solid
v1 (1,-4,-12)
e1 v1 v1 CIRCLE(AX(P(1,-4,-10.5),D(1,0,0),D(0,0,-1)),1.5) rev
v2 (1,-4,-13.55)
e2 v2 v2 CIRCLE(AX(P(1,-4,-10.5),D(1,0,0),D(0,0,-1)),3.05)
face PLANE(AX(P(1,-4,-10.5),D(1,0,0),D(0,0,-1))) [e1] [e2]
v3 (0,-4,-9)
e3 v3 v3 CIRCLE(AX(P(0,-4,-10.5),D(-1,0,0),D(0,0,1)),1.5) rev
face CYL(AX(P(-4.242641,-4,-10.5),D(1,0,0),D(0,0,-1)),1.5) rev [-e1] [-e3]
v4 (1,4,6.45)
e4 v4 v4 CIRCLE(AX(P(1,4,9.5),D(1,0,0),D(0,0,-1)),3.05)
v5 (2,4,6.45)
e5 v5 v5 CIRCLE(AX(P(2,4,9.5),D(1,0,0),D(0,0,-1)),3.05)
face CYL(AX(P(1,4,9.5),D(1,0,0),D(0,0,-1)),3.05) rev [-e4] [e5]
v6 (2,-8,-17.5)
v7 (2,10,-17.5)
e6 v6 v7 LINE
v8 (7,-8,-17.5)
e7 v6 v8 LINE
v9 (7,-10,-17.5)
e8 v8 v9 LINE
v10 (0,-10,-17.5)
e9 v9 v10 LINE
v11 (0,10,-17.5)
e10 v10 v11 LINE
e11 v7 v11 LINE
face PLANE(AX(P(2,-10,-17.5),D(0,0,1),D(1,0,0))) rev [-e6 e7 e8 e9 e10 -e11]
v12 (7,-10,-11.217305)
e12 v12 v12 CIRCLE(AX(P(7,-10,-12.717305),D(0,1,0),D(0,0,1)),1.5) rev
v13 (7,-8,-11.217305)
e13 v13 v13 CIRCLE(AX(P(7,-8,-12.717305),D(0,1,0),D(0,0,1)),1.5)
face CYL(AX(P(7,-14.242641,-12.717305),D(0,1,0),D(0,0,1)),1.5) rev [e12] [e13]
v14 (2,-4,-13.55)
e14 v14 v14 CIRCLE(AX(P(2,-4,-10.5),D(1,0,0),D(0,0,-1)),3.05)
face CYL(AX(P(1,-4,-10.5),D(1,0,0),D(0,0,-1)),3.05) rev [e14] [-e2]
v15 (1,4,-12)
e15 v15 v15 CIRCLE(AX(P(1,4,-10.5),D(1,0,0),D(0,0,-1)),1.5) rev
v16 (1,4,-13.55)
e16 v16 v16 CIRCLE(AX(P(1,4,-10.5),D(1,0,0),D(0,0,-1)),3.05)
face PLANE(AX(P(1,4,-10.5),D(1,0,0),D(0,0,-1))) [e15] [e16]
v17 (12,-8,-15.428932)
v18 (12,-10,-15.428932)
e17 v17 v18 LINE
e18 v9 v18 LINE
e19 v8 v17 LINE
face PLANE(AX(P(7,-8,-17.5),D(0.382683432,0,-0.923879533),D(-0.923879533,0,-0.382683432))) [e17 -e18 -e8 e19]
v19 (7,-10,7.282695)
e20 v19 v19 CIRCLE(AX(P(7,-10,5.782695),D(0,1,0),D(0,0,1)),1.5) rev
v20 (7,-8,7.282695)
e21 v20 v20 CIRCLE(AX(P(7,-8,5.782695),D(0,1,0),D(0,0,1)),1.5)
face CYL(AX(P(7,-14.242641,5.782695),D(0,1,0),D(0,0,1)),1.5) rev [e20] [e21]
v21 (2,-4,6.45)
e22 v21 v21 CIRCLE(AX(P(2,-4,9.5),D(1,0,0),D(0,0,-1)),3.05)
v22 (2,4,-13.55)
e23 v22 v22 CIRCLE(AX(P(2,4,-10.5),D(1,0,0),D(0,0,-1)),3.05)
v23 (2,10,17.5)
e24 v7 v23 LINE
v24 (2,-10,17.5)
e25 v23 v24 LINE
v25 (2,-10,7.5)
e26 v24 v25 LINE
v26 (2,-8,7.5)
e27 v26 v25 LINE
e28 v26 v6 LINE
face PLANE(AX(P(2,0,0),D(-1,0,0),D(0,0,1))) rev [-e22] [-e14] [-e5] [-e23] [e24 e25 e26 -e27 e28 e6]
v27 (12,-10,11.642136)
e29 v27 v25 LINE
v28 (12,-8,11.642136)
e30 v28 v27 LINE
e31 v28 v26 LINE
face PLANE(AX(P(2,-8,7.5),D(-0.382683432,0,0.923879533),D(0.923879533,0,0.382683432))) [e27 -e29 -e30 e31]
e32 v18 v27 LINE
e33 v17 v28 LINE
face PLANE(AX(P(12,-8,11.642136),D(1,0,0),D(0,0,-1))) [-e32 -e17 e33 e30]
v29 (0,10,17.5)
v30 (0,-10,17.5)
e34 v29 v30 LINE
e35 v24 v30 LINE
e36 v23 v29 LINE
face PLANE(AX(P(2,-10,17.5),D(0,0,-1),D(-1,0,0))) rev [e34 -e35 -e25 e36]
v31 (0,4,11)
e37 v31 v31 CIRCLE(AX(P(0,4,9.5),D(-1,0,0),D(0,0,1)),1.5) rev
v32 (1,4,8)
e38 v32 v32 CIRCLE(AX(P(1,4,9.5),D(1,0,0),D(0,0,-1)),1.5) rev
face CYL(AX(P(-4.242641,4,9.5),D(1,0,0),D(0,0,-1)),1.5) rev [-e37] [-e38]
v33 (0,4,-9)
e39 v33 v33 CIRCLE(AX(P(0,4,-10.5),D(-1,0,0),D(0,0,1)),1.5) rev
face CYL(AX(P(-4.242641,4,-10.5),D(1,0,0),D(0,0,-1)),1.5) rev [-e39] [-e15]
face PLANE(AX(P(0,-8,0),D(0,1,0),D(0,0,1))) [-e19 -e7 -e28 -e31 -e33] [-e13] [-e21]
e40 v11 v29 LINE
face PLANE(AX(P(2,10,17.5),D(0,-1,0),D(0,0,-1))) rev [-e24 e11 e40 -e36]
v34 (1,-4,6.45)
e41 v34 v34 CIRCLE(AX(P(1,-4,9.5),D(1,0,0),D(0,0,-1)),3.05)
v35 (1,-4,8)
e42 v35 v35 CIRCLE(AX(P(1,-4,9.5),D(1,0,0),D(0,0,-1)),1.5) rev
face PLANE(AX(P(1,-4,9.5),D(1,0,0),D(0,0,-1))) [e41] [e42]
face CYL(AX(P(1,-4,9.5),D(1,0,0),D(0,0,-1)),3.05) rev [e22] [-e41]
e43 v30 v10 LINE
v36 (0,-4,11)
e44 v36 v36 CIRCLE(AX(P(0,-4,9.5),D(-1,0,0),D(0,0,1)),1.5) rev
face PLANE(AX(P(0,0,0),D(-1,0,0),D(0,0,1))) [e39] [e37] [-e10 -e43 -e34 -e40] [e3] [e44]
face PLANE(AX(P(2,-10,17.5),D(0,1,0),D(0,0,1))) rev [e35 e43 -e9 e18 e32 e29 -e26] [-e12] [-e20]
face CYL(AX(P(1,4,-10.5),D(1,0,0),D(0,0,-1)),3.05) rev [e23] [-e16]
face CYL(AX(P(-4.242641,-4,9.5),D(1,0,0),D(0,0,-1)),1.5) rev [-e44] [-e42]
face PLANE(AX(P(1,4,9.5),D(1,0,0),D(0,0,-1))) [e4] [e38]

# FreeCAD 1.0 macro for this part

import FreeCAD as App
import Part
import Sketcher
Q = App.Units.Quantity


def add_polygon(sketch, points):
    """Adds a closed chain of lines whose ends are joined by coincident constraints."""
    first, n = sketch.GeometryCount, len(points)
    for a, b in zip(points, points[1:] + points[:1]):
        sketch.addGeometry(Part.LineSegment(App.Vector(*a, 0), App.Vector(*b, 0)), False)
    for i in range(n):
        sketch.addConstraint(Sketcher.Constraint("Coincident", first + i, 2, first + (i + 1) % n, 1))

doc = App.newDocument("Part")
body = doc.addObject("PartDesign::Body", "Body")

sketch1 = body.newObject("Sketcher::SketchObject", "Sketch")
sketch1.AttachmentSupport = (doc.getObject("YZ_Plane"), [""])
sketch1.MapMode = "FlatFace"
add_polygon(sketch1, [(10, 18), (-10, 18), (-10, -18), (10, -18)])
sketch1.addConstraint(Sketcher.Constraint("Horizontal", 0))
sketch1.addConstraint(Sketcher.Constraint("Vertical", 1))
sketch1.addConstraint(Sketcher.Constraint("Horizontal", 2))
sketch1.addConstraint(Sketcher.Constraint("Vertical", 3))
sketch1.addConstraint(Sketcher.Constraint("Symmetric", 0, 2, 2, 2, -1, 1))
sketch1.addConstraint(Sketcher.Constraint("DistanceX", 0, 2, 0, 1, Q("20 mm")))
sketch1.addConstraint(Sketcher.Constraint("DistanceY", 1, 2, 1, 1, Q("35 mm")))
pad1 = body.newObject("PartDesign::Pad", "Pad")
pad1.Profile = sketch1
pad1.Length = 2

sketch2 = body.newObject("Sketcher::SketchObject", "Sketch001")
sketch2.AttachmentSupport = (doc.getObject("YZ_Plane"), [""])
sketch2.MapMode = "FlatFace"
sketch2.AttachmentOffset = App.Placement(App.Vector(0, 0, 2), App.Rotation())
sketch2.addGeometry(Part.Circle(App.Vector(4, -10.5, 0), App.Vector(0, 0, 1), 1.5), False)
sketch2.addGeometry(Part.Circle(App.Vector(-4, -10.5, 0), App.Vector(0, 0, 1), 1.5), False)
sketch2.addGeometry(Part.Circle(App.Vector(4, 9.5, 0), App.Vector(0, 0, 1), 1.5), False)
sketch2.addGeometry(Part.Circle(App.Vector(-4, 9.5, 0), App.Vector(0, 0, 1), 1.5), False)
sketch2.addConstraint(Sketcher.Constraint("Equal", 0, 1))
sketch2.addConstraint(Sketcher.Constraint("Equal", 1, 2))
sketch2.addConstraint(Sketcher.Constraint("Equal", 2, 3))
sketch2.addConstraint(Sketcher.Constraint("Symmetric", 0, 3, 1, 3, -2))
sketch2.addConstraint(Sketcher.Constraint("Symmetric", 2, 3, 3, 3, -2))
sketch2.addConstraint(Sketcher.Constraint("Vertical", 0, 3, 2, 3))
sketch2.addConstraint(Sketcher.Constraint("Diameter", 0, Q("3 mm")))
sketch2.addConstraint(Sketcher.Constraint("DistanceX", -1, 1, 0, 3, Q("4 mm")))
sketch2.addConstraint(Sketcher.Constraint("DistanceY", 0, 3, 2, 3, Q("20 mm")))
sketch2.addConstraint(Sketcher.Constraint("DistanceY", 0, 3, -1, 1, Q("10.5 mm")))
pocket1 = body.newObject("PartDesign::Pocket", "Pocket")
pocket1.Profile = sketch2
pocket1.Length = 2

sketch3 = body.newObject("Sketcher::SketchObject", "Sketch002")
sketch3.AttachmentSupport = (doc.getObject("XZ_Plane"), [""])
sketch3.MapMode = "FlatFace"
sketch3.AttachmentOffset = App.Placement(App.Vector(0, 0, 10), App.Rotation())
add_polygon(sketch3, [(12, 12), (2, 8), (2, -18), (7, -18), (12, -15)])
sketch3.addConstraint(Sketcher.Constraint("Vertical", 1))
sketch3.addConstraint(Sketcher.Constraint("Horizontal", 2))
sketch3.addConstraint(Sketcher.Constraint("Vertical", 4))
sketch3.addConstraint(Sketcher.Constraint("Parallel", 0, 3))
sketch3.addConstraint(Sketcher.Constraint("DistanceX", 2, 1, 2, 2, Q("5 mm")))
sketch3.addConstraint(Sketcher.Constraint("DistanceY", 1, 2, 1, 1, Q("25 mm")))
sketch3.addConstraint(Sketcher.Constraint("DistanceX", -1, 1, 0, 2, Q("2 mm")))
sketch3.addConstraint(Sketcher.Constraint("DistanceX", -1, 1, 3, 2, Q("12 mm")))
sketch3.addConstraint(Sketcher.Constraint("Angle", 0, Q("-157.5 deg")))
sketch3.addConstraint(Sketcher.Constraint("DistanceY", -1, 1, 0, 2, Q("7.5 mm")))
pad2 = body.newObject("PartDesign::Pad", "Pad001")
pad2.Profile = sketch3
pad2.Length = 2
pad2.Reversed = True

sketch4 = body.newObject("Sketcher::SketchObject", "Sketch003")
sketch4.AttachmentSupport = (doc.getObject("XZ_Plane"), [""])
sketch4.MapMode = "FlatFace"
sketch4.AttachmentOffset = App.Placement(App.Vector(0, 0, 8), App.Rotation())
sketch4.addGeometry(Part.Circle(App.Vector(7, -12.7, 0), App.Vector(0, 0, 1), 1.5), False)
sketch4.addGeometry(Part.Circle(App.Vector(7, 5.8, 0), App.Vector(0, 0, 1), 1.5), False)
sketch4.addConstraint(Sketcher.Constraint("Equal", 0, 1))
sketch4.addConstraint(Sketcher.Constraint("Vertical", 0, 3, 1, 3))
sketch4.addConstraint(Sketcher.Constraint("Diameter", 0, Q("3 mm")))
sketch4.addConstraint(Sketcher.Constraint("DistanceX", -1, 1, 0, 3, Q("7 mm")))
sketch4.addConstraint(Sketcher.Constraint("DistanceY", 0, 3, 1, 3, Q("18.5 mm")))
sketch4.addConstraint(Sketcher.Constraint("DistanceY", 0, 3, -1, 1, Q("12.717305 mm")))
pocket2 = body.newObject("PartDesign::Pocket", "Pocket001")
pocket2.Profile = sketch4
pocket2.Length = 2
pocket2.Reversed = True

sketch5 = body.newObject("Sketcher::SketchObject", "Sketch004")
sketch5.AttachmentSupport = (doc.getObject("YZ_Plane"), [""])
sketch5.MapMode = "FlatFace"
sketch5.AttachmentOffset = App.Placement(App.Vector(0, 0, 2), App.Rotation())
sketch5.addGeometry(Part.Circle(App.Vector(4, 9.5, 0), App.Vector(0, 0, 1), 3), False)
sketch5.addGeometry(Part.Circle(App.Vector(-4, 9.5, 0), App.Vector(0, 0, 1), 3), False)
sketch5.addGeometry(Part.Circle(App.Vector(-4, -10.5, 0), App.Vector(0, 0, 1), 3), False)
sketch5.addGeometry(Part.Circle(App.Vector(4, -10.5, 0), App.Vector(0, 0, 1), 3), False)
sketch5.addConstraint(Sketcher.Constraint("Equal", 0, 1))
sketch5.addConstraint(Sketcher.Constraint("Equal", 1, 2))
sketch5.addConstraint(Sketcher.Constraint("Equal", 2, 3))
sketch5.addConstraint(Sketcher.Constraint("Symmetric", 0, 3, 1, 3, -2))
sketch5.addConstraint(Sketcher.Constraint("Symmetric", 2, 3, 3, 3, -2))
sketch5.addConstraint(Sketcher.Constraint("Vertical", 1, 3, 2, 3))
sketch5.addConstraint(Sketcher.Constraint("Diameter", 0, Q("6.1 mm")))
sketch5.addConstraint(Sketcher.Constraint("DistanceX", -1, 1, 0, 3, Q("4 mm")))
sketch5.addConstraint(Sketcher.Constraint("DistanceY", 2, 3, 1, 3, Q("20 mm")))
sketch5.addConstraint(Sketcher.Constraint("DistanceY", -1, 1, 0, 3, Q("9.5 mm")))
pocket3 = body.newObject("PartDesign::Pocket", "Pocket002")
pocket3.Profile = sketch5
pocket3.Length = 1

doc.recompute()
